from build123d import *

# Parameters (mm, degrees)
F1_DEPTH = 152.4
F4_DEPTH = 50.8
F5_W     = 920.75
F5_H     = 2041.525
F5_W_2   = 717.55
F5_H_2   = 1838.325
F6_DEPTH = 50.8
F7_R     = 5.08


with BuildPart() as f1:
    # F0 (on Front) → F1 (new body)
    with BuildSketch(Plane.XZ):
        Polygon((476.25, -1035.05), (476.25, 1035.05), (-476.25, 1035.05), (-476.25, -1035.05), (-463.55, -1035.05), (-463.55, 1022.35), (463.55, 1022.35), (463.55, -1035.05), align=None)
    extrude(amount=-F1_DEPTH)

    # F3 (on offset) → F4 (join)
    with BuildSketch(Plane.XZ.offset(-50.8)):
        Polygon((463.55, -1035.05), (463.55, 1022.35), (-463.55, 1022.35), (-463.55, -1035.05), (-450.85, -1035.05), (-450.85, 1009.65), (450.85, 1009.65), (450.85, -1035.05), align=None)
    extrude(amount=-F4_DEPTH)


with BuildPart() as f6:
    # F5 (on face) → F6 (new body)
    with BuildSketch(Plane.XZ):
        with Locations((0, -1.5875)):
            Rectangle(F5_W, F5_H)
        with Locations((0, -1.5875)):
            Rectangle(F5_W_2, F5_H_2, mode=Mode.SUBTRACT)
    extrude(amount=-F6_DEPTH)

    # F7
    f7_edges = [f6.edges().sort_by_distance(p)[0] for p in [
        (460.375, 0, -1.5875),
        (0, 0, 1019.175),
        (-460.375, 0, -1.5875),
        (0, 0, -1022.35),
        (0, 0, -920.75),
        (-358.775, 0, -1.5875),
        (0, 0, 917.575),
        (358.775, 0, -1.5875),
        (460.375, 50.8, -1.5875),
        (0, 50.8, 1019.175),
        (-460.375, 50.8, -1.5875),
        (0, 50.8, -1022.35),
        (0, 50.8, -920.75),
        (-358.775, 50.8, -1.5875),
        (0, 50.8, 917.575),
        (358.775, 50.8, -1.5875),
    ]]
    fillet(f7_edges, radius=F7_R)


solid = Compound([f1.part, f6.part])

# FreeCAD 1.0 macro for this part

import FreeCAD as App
import Part
import Sketcher
from FreeCAD import Vector
Q = App.Units.Quantity


def edges_at(feature, points):
    """Names of the edges that pass closest to the given points."""
    edges = feature.Shape.Edges
    near = lambda p: min(range(len(edges)), key=lambda i: edges[i].distToShape(Part.Vertex(*p))[0])
    return sorted({f"Edge{near(p) + 1}" for p in points})


def add_polygon(sketch, points):
    """Adds a closed chain of lines whose ends are joined by coincident constraints."""
    first, n = sketch.GeometryCount, len(points)
    for a, b in zip(points, points[1:] + points[:1]):
        sketch.addGeometry(Part.LineSegment(App.Vector(*a, 0), App.Vector(*b, 0)), False)
    for i in range(n):
        sketch.addConstraint(Sketcher.Constraint("Coincident", first + i, 2, first + (i + 1) % n, 1))

doc = App.newDocument("Part")
params = doc.addObject("Spreadsheet::Sheet", "Params")
for row, (alias, value) in enumerate([
    ("sketch1_height", "81 in"),
    ("sketch1_width", "37.5 in"),
    ("sketch1_width2", "0.5 in"),
    ("sketch1_height2", "81.5 in"),
    ("pad1_length", "6 in"),
    ("sketch2_height", "81 in"),
    ("sketch2_width", "36.5 in"),
    ("sketch2_width2", "0.5 in"),
    ("sketch2_height2", "80.5 in"),
    ("pad2_length", "2 in"),
    ("sketch3_width", "36.25 in"),
    ("sketch3_height", "80.375 in"),
    ("pad3_length", "2 in"),
    ("fillet_radius", "0.2 in"),
], start=1):
    params.set(f"A{row}", alias)
    params.set(f"B{row}", "=" + value)
    params.setAlias(f"B{row}", alias)

body = doc.addObject("PartDesign::Body", "Body")

# Sketch on XZ plane
sketch1 = body.newObject("Sketcher::SketchObject", "Sketch")
sketch1.AttachmentSupport = (doc.getObject("XZ_Plane"), [""])
sketch1.MapMode = "FlatFace"
add_polygon(sketch1, [(476, -1035), (476, 1035), (-476, 1035), (-476, -1035), (-464, -1035), (-464, 1022), (464, 1022), (464, -1035)])  # lines 0-7
sketch1.addConstraint(Sketcher.Constraint("Vertical", 0))
sketch1.addConstraint(Sketcher.Constraint("Horizontal", 1))
sketch1.addConstraint(Sketcher.Constraint("Vertical", 2))
sketch1.addConstraint(Sketcher.Constraint("Horizontal", 3))
sketch1.addConstraint(Sketcher.Constraint("Vertical", 4))
sketch1.addConstraint(Sketcher.Constraint("Horizontal", 5))
sketch1.addConstraint(Sketcher.Constraint("Vertical", 6))
sketch1.addConstraint(Sketcher.Constraint("Horizontal", 7))
sketch1.addConstraint(Sketcher.Constraint("Symmetric", 0, 2, 2, 2, -1, 1))
sketch1.addConstraint(Sketcher.Constraint("Symmetric", 3, 2, 6, 2, -2))
sketch1.addConstraint(Sketcher.Constraint("DistanceY", 4, 1, 4, 2, Q("81 in")))
sketch1.addConstraint(Sketcher.Constraint("DistanceX", 1, 2, 1, 1, Q("37.5 in")))
sketch1.addConstraint(Sketcher.Constraint("DistanceX", 3, 1, 3, 2, Q("0.5 in")))
sketch1.addConstraint(Sketcher.Constraint("DistanceY", 0, 1, 0, 2, Q("81.5 in")))
sketch1.setExpression("Constraints[18]", "Params.sketch1_height")
sketch1.setExpression("Constraints[19]", "Params.sketch1_width")
sketch1.setExpression("Constraints[20]", "Params.sketch1_width2")
sketch1.setExpression("Constraints[21]", "Params.sketch1_height2")
pad1 = body.newObject("PartDesign::Pad", "Pad")
pad1.Profile = sketch1
pad1.setExpression("Length", "Params.pad1_length")
pad1.Reversed = True

# Sketch on XZ plane
sketch2 = body.newObject("Sketcher::SketchObject", "Sketch001")
sketch2.AttachmentSupport = (doc.getObject("XZ_Plane"), [""])
sketch2.MapMode = "FlatFace"
sketch2.AttachmentOffset = App.Placement(Vector(0, 0, -2 * 25.4), App.Rotation())
add_polygon(sketch2, [(464, -1035), (464, 1022), (-464, 1022), (-464, -1035), (-451, -1035), (-451, 1010), (451, 1010), (451, -1035)])  # lines 0-7
sketch2.addConstraint(Sketcher.Constraint("Vertical", 0))
sketch2.addConstraint(Sketcher.Constraint("Horizontal", 1))
sketch2.addConstraint(Sketcher.Constraint("Vertical", 2))
sketch2.addConstraint(Sketcher.Constraint("Horizontal", 3))
sketch2.addConstraint(Sketcher.Constraint("Vertical", 4))
sketch2.addConstraint(Sketcher.Constraint("Horizontal", 5))
sketch2.addConstraint(Sketcher.Constraint("Vertical", 6))
sketch2.addConstraint(Sketcher.Constraint("Horizontal", 7))
sketch2.addConstraint(Sketcher.Constraint("Symmetric", 3, 2, 6, 2, -2))
sketch2.addConstraint(Sketcher.Constraint("Equal", 3, 7))
sketch2.addConstraint(Sketcher.Constraint("DistanceY", 0, 1, 0, 2, Q("81 in")))
sketch2.addConstraint(Sketcher.Constraint("DistanceX", 1, 2, 1, 1, Q("36.5 in")))
sketch2.addConstraint(Sketcher.Constraint("DistanceX", 3, 1, 3, 2, Q("0.5 in")))
sketch2.addConstraint(Sketcher.Constraint("DistanceY", 4, 1, 4, 2, Q("80.5 in")))
sketch2.addConstraint(Sketcher.Constraint("DistanceY", -1, 1, 0, 2, Q("40.25 in")))
sketch2.setExpression("Constraints[18]", "Params.sketch2_height")
sketch2.setExpression("Constraints[19]", "Params.sketch2_width")
sketch2.setExpression("Constraints[20]", "Params.sketch2_width2")
sketch2.setExpression("Constraints[21]", "Params.sketch2_height2")
pad2 = body.newObject("PartDesign::Pad", "Pad001")
pad2.Profile = sketch2
pad2.setExpression("Length", "Params.pad2_length")
pad2.Reversed = True
body2 = doc.addObject("PartDesign::Body", "Body001")

# Sketch on XZ plane
sketch3 = body2.newObject("Sketcher::SketchObject", "Sketch002")
sketch3.AttachmentSupport = (doc.getObject("XZ_Plane001"), [""])
sketch3.MapMode = "FlatFace"
add_polygon(sketch3, [(-460, 1019), (-460, -1022), (460, -1022), (460, 1019)])  # lines 0-3
add_polygon(sketch3, [(359, -921), (-359, -921), (-359, 918), (359, 918)])  # lines 4-7
sketch3.addConstraint(Sketcher.Constraint("Vertical", 0))
sketch3.addConstraint(Sketcher.Constraint("Horizontal", 1))
sketch3.addConstraint(Sketcher.Constraint("Vertical", 2))
sketch3.addConstraint(Sketcher.Constraint("Horizontal", 3))
sketch3.addConstraint(Sketcher.Constraint("Horizontal", 4))
sketch3.addConstraint(Sketcher.Constraint("Vertical", 5))
sketch3.addConstraint(Sketcher.Constraint("Horizontal", 6))
sketch3.addConstraint(Sketcher.Constraint("Vertical", 7))
sketch3.addConstraint(Sketcher.Constraint("DistanceX", 0, 2, 4, 2, Q("4 in")))
sketch3.addConstraint(Sketcher.Constraint("DistanceY", 0, 2, 4, 2, Q("4 in")))
sketch3.addConstraint(Sketcher.Constraint("DistanceY", 5, 2, 3, 2, Q("4 in")))
sketch3.addConstraint(Sketcher.Constraint("DistanceX", 6, 2, 2, 2, Q("4 in")))
sketch3.addConstraint(Sketcher.Constraint("DistanceX", 1, 1, 1, 2, Q("36.25 in")))
sketch3.addConstraint(Sketcher.Constraint("DistanceY", 0, 2, 0, 1, Q("80.375 in")))
sketch3.addConstraint(Sketcher.Constraint("DistanceY", 0, 2, -1, 1, Q("40.25 in")))
sketch3.addConstraint(Sketcher.Constraint("DistanceX", 0, 2, -1, 1, Q("18.125 in")))
sketch3.setExpression("Constraints[20]", "Params.sketch3_width")
sketch3.setExpression("Constraints[21]", "Params.sketch3_height")
pad3 = body2.newObject("PartDesign::Pad", "Pad002")
pad3.Profile = sketch3
pad3.setExpression("Length", "Params.pad3_length")
pad3.Reversed = True
doc.recompute()

fillet = body2.newObject("PartDesign::Fillet", "Fillet")
fillet.Base = (pad3, edges_at(pad3, [
    (460.375, 0, -1.587),
    (0, 0, 1019.175),
    (-460.375, 0, -1.587),
    (0, 0, -1022.35),
    (0, 0, -920.75),
    (-358.775, 0, -1.587),
    (0, 0, 917.575),
    (358.775, 0, -1.587),
    (460.375, 50.8, -1.587),
    (0, 50.8, 1019.175),
    (-460.375, 50.8, -1.587),
    (0, 50.8, -1022.35),
    (0, 50.8, -920.75),
    (-358.775, 50.8, -1.587),
    (0, 50.8, 917.575),
    (358.775, 50.8, -1.587),
]))
fillet.setExpression("Radius", "Params.fillet_radius")

doc.recompute()
